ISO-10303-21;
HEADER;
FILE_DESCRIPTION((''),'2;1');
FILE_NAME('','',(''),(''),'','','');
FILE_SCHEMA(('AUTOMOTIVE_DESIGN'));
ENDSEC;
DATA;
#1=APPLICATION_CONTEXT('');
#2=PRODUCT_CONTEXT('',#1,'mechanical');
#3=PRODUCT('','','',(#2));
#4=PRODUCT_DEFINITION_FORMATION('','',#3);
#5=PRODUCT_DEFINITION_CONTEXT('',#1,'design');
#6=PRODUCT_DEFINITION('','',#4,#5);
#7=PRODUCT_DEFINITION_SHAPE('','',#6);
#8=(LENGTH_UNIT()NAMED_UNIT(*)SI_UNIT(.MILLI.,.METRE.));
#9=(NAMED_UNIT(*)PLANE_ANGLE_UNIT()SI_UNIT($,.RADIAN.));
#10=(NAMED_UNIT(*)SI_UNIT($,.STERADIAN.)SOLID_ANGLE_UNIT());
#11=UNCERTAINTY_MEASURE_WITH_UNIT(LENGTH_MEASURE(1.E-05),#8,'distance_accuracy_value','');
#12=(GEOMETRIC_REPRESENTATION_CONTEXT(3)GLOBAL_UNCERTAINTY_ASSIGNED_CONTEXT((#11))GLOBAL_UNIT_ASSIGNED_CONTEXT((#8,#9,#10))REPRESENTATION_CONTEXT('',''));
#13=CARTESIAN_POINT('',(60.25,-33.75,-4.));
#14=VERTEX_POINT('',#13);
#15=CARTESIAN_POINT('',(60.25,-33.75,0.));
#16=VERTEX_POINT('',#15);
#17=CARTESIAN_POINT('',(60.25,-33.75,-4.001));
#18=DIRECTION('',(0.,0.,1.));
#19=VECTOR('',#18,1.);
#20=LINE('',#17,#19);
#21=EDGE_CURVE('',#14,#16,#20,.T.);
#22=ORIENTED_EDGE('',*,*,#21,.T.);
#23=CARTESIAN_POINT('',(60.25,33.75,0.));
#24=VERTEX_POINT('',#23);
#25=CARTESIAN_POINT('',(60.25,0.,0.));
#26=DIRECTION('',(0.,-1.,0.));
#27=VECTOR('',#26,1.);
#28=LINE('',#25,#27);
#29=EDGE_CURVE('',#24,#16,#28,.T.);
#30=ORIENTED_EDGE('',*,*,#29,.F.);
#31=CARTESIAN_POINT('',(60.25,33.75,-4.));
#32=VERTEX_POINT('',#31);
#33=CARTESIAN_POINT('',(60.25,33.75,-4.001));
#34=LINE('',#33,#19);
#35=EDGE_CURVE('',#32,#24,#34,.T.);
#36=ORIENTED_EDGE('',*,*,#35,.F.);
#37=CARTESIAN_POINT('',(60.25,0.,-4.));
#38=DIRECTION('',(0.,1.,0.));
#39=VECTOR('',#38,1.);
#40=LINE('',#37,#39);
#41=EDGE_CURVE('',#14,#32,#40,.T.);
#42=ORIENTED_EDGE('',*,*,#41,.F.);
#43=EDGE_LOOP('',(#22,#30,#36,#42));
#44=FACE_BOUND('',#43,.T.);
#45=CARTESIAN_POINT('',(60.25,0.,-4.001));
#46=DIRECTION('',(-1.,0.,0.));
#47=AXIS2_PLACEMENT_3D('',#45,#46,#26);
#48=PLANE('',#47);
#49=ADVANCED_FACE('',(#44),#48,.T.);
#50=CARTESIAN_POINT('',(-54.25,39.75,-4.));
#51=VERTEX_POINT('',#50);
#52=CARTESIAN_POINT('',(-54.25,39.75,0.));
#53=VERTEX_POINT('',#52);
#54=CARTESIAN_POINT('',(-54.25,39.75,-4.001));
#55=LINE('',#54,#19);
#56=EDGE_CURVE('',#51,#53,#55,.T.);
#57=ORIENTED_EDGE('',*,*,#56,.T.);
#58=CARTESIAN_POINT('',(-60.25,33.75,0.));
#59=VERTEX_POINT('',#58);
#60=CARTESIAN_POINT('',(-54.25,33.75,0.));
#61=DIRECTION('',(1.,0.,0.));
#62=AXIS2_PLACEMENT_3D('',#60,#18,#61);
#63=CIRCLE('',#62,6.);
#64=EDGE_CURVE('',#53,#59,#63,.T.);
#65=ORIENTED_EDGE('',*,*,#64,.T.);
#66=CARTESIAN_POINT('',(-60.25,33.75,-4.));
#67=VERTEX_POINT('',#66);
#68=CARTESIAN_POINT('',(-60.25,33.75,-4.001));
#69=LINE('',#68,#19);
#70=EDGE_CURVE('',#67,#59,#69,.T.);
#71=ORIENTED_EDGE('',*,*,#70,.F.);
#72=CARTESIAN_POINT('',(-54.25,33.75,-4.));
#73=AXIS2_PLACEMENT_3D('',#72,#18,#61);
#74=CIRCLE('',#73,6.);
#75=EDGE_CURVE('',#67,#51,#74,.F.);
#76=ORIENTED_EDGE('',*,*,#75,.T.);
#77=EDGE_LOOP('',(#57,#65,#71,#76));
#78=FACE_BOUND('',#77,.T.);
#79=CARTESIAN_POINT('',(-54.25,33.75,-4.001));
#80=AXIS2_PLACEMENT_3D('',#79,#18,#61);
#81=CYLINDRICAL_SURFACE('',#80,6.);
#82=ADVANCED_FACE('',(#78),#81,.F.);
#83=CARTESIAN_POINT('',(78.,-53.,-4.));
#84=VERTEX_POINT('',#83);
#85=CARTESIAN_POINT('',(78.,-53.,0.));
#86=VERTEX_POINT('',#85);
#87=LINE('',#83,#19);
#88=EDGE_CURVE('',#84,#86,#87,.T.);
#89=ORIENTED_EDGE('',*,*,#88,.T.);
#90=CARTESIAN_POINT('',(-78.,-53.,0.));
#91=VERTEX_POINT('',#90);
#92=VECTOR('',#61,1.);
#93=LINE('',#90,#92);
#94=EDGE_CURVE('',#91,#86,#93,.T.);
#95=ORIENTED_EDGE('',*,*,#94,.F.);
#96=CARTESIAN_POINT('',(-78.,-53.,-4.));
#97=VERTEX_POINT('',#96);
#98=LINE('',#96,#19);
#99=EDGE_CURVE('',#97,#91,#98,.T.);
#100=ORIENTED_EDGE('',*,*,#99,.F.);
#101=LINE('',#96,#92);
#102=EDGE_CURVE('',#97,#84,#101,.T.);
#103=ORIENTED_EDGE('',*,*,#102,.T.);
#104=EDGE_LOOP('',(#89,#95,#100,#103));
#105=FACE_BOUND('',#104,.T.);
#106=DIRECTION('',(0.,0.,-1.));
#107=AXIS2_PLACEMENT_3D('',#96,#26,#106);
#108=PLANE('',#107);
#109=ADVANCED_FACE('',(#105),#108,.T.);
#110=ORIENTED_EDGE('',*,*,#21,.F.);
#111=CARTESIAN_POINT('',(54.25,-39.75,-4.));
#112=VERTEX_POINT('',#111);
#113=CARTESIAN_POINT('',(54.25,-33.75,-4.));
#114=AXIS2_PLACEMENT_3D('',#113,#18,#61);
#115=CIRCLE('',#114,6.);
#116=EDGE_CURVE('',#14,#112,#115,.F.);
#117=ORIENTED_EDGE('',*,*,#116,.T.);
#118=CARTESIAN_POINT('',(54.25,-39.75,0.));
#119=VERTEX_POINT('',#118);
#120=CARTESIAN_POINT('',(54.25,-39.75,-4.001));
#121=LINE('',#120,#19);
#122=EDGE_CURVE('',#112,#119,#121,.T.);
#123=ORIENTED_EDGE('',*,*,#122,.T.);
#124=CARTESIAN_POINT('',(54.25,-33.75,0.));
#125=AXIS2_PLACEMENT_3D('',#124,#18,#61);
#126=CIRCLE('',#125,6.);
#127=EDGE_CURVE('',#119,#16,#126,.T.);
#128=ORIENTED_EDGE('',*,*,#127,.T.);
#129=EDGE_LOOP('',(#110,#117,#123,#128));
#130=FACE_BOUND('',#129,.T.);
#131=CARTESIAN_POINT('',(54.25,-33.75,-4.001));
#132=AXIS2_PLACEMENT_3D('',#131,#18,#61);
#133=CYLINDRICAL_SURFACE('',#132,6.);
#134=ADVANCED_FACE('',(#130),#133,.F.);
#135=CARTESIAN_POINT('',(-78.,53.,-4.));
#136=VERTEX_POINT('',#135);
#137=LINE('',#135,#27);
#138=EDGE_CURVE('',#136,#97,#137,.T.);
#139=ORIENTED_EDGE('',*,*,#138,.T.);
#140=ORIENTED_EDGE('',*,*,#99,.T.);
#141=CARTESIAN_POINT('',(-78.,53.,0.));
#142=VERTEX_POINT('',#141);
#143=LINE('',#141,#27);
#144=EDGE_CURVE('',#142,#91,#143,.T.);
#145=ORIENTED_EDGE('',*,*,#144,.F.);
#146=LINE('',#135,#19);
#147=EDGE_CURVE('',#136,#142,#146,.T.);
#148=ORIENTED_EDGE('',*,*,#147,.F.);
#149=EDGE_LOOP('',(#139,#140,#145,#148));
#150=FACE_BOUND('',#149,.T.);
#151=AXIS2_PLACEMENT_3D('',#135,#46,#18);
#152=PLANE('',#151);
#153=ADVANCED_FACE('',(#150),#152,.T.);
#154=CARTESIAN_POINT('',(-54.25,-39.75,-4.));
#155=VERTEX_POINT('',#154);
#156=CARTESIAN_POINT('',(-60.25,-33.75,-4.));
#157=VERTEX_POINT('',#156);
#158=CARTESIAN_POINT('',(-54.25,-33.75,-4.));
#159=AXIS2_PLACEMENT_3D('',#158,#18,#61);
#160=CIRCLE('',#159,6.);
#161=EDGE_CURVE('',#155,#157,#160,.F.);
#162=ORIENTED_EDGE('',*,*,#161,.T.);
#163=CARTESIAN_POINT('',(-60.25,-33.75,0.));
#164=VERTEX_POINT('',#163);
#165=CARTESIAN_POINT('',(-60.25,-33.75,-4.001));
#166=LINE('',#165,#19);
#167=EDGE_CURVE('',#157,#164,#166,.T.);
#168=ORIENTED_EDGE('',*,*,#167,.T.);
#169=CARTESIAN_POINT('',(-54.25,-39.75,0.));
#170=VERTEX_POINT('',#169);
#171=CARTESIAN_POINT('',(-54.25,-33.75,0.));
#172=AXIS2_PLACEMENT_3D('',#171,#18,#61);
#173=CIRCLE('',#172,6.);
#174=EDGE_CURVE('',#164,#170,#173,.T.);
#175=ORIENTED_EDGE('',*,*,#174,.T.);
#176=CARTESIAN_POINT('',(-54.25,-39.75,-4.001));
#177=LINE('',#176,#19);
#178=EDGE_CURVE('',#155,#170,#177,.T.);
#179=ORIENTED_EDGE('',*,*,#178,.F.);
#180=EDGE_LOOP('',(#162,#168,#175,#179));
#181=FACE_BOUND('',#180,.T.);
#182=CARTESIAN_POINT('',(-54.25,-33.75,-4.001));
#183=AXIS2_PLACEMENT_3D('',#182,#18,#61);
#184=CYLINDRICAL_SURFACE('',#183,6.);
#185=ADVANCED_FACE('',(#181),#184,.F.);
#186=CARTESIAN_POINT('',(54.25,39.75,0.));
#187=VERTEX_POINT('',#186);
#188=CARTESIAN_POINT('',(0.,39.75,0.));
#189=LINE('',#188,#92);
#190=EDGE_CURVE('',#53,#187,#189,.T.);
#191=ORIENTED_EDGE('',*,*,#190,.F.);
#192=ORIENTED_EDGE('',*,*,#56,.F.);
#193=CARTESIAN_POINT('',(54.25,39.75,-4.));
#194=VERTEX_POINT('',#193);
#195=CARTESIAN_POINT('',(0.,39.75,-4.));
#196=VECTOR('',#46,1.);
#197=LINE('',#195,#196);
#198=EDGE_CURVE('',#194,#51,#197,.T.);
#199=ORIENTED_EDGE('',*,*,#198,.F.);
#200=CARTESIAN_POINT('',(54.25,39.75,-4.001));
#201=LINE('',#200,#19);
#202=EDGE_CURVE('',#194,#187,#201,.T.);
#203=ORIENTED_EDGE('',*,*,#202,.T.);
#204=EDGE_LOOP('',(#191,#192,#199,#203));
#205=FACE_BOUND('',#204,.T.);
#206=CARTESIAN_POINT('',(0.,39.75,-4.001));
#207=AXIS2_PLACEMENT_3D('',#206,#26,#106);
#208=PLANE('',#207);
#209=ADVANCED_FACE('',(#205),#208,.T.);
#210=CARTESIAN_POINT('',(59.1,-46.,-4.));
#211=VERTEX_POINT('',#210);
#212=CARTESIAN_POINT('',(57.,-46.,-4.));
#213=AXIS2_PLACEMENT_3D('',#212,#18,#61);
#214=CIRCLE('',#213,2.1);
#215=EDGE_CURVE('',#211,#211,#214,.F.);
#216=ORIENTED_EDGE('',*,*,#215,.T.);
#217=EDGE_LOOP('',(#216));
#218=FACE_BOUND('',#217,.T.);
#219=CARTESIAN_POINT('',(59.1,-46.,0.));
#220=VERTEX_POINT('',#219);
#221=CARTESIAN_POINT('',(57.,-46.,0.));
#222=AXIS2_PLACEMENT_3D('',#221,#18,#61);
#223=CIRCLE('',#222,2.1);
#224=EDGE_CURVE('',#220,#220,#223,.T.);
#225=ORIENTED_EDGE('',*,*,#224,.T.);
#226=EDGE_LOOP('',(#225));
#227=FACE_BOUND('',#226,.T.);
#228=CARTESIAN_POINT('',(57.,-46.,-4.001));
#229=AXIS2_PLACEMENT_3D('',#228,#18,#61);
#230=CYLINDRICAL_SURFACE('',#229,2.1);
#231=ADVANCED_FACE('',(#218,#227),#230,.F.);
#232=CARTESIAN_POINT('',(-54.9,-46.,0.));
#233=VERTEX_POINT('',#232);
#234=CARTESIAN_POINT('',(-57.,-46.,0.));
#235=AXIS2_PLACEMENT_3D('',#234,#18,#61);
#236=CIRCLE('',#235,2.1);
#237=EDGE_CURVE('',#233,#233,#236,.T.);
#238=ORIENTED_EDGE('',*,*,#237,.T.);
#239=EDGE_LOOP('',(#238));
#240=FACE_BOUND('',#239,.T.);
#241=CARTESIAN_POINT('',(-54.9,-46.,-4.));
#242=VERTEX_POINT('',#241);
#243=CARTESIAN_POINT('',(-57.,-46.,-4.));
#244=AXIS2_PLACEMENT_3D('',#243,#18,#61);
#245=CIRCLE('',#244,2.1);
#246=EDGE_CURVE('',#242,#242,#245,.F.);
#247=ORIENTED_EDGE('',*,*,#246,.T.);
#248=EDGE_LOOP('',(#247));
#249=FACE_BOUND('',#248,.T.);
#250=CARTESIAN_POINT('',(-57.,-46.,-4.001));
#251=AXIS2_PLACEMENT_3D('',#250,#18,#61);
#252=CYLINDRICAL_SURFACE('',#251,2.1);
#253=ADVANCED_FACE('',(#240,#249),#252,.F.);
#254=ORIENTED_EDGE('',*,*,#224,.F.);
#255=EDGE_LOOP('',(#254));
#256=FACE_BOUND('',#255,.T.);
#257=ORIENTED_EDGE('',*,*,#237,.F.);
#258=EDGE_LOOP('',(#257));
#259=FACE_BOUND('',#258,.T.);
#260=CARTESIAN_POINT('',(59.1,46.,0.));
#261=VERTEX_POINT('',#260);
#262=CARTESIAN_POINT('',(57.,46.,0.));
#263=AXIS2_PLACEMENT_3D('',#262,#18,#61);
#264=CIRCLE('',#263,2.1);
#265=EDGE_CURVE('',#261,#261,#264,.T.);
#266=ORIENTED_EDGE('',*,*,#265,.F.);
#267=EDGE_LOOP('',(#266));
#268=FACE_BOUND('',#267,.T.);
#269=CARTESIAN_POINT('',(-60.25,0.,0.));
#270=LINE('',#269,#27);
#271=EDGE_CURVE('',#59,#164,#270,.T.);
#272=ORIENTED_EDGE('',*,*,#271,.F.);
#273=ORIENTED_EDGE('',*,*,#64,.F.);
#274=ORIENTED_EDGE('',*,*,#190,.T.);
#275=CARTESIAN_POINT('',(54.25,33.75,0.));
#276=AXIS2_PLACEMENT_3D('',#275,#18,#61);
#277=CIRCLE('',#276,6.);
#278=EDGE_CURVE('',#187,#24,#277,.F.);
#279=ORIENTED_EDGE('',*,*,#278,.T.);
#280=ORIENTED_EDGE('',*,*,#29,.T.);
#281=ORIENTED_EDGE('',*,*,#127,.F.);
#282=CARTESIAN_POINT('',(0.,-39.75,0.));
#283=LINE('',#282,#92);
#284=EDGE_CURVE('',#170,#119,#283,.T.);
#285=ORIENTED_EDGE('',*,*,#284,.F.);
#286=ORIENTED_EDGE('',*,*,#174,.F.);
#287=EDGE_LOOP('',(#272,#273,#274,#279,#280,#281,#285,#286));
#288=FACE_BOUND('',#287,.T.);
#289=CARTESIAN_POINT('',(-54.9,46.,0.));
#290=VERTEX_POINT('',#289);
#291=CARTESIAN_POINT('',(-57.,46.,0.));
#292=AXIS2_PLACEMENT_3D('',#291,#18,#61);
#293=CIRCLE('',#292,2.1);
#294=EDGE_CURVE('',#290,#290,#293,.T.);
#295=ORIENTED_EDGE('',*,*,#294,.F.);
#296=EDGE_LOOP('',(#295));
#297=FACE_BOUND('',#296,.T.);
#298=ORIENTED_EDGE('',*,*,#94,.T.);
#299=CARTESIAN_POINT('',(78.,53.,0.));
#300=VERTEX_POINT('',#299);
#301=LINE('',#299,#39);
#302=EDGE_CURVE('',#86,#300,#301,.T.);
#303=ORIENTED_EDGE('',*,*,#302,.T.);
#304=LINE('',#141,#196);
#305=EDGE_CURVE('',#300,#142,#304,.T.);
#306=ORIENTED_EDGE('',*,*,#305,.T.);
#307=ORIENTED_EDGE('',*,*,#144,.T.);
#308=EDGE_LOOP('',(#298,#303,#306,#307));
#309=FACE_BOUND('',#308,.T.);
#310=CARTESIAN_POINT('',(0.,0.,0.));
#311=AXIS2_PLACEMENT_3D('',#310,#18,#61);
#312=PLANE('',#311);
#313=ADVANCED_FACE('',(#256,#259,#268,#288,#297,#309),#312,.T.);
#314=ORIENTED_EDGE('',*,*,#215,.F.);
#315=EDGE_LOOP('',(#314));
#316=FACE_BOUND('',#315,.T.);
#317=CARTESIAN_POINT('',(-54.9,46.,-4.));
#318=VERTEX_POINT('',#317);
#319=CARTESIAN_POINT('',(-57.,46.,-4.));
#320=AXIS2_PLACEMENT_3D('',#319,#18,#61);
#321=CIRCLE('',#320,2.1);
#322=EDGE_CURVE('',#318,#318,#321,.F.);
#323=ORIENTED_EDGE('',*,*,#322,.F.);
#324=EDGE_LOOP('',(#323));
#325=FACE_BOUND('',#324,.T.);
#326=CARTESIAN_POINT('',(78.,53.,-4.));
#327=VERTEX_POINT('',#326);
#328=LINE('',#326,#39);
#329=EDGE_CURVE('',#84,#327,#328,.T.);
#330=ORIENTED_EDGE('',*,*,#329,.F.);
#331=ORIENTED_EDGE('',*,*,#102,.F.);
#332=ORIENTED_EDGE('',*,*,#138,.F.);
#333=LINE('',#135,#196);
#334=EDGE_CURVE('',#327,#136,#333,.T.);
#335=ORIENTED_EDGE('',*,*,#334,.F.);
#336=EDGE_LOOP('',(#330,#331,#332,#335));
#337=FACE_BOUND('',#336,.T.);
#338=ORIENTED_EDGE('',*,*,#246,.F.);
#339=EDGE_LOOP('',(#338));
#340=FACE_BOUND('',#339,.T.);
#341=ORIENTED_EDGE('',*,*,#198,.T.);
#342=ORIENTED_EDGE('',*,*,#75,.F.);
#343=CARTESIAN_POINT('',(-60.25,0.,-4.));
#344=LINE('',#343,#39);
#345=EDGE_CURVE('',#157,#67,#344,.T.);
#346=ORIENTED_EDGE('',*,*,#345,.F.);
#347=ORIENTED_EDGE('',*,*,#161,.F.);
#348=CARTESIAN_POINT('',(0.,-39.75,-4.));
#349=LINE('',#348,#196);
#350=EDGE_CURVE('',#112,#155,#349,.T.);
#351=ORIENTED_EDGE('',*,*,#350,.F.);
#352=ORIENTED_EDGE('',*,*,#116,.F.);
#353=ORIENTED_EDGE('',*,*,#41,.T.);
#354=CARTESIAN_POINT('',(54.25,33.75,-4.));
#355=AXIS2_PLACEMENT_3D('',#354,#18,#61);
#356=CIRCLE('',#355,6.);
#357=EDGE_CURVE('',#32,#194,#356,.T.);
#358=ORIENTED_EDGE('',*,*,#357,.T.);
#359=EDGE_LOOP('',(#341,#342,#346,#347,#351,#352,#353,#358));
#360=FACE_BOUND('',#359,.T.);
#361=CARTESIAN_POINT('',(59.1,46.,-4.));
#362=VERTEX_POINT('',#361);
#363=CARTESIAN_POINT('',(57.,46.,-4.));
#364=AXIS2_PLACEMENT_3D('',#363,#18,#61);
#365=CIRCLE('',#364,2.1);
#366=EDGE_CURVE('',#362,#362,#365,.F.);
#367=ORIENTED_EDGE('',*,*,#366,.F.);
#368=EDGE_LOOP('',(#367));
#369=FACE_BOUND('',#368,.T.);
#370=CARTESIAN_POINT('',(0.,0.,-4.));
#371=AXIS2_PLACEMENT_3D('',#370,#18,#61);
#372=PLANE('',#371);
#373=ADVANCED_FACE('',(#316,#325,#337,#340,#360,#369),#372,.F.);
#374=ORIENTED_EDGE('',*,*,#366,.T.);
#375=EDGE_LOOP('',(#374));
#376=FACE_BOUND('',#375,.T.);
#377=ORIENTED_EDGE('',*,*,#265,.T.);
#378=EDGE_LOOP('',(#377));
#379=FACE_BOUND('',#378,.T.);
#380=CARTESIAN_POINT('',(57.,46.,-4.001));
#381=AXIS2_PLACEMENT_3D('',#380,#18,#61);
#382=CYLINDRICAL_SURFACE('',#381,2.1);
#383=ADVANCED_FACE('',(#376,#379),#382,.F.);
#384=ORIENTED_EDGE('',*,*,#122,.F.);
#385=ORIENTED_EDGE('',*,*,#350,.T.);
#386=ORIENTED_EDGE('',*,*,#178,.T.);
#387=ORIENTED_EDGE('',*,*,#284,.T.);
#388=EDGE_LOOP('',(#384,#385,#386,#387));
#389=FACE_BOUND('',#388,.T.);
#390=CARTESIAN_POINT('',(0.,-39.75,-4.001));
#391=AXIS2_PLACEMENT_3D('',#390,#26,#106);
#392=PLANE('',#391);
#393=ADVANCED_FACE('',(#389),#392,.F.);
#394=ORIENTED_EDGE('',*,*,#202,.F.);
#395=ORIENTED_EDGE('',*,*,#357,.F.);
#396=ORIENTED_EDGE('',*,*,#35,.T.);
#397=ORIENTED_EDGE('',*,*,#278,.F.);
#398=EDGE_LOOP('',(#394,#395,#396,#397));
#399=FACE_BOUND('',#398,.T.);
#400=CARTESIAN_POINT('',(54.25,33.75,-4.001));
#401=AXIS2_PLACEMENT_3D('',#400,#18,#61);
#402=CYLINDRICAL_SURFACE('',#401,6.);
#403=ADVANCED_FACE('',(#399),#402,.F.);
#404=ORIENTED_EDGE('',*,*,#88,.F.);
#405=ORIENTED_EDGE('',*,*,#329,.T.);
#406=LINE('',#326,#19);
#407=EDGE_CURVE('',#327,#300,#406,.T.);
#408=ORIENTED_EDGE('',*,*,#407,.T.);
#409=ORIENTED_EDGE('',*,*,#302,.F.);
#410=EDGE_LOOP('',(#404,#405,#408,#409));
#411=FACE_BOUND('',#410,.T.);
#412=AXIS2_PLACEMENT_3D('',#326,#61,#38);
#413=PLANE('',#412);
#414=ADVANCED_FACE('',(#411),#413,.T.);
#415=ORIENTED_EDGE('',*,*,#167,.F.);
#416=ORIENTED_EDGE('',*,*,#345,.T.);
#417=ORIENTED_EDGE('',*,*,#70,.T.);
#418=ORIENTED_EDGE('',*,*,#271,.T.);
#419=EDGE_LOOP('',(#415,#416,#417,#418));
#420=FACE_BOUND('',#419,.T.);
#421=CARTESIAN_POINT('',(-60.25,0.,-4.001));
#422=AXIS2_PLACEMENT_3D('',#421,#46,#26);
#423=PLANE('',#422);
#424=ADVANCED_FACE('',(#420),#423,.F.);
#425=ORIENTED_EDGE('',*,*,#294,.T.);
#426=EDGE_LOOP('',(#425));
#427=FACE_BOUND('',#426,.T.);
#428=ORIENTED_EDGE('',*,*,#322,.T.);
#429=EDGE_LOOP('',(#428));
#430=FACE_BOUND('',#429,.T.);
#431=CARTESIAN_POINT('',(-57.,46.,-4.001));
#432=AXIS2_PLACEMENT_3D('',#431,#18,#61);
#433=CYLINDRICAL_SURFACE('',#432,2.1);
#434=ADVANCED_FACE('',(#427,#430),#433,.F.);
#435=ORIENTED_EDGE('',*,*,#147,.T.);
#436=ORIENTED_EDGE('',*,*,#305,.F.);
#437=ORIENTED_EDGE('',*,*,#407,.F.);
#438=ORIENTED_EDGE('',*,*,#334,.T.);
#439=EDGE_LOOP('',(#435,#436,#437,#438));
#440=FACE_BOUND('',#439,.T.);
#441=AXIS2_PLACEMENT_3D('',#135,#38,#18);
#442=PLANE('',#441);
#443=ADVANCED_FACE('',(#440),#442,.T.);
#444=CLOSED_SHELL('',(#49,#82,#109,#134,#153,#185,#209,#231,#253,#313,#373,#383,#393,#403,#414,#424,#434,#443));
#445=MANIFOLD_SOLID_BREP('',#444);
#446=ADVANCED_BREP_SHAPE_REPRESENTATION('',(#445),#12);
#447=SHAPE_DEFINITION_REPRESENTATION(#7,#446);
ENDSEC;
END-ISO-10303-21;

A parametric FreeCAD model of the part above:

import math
import FreeCAD as App
import Part
import Sketcher

V = App.Vector
Q = App.Units.Quantity


def add_polygon(sketch, points):
    """Adds a closed chain of lines whose ends are joined by coincident constraints."""
    first, n = sketch.GeometryCount, len(points)
    for a, b in zip(points, points[1:] + points[:1]):
        sketch.addGeometry(Part.LineSegment(App.Vector(*a, 0), App.Vector(*b, 0)), False)
    for i in range(n):
        sketch.addConstraint(Sketcher.Constraint("Coincident", first + i, 2, first + (i + 1) % n, 1))

doc = App.newDocument("Part")
body = doc.addObject("PartDesign::Body", "Body")

sketch1 = body.newObject("Sketcher::SketchObject", "Sketch")
sketch1.AttachmentSupport = (doc.getObject("XY_Plane"), [""])
sketch1.MapMode = "FlatFace"
add_polygon(sketch1, [(-78, 53), (-78, -53), (78, -53), (78, 53)])
sketch1.addConstraint(Sketcher.Constraint("Vertical", 0))
sketch1.addConstraint(Sketcher.Constraint("Horizontal", 1))
sketch1.addConstraint(Sketcher.Constraint("Vertical", 2))
sketch1.addConstraint(Sketcher.Constraint("Horizontal", 3))
sketch1.addConstraint(Sketcher.Constraint("Symmetric", 0, 2, 2, 2, -1, 1))
sketch1.addConstraint(Sketcher.Constraint("DistanceX", 1, 1, 1, 2, Q("156 mm")))
sketch1.addConstraint(Sketcher.Constraint("DistanceY", 0, 2, 0, 1, Q("106 mm")))
pad1 = body.newObject("PartDesign::Pad", "Pad")
pad1.Profile = sketch1
pad1.Length = 4
pad1.Reversed = True

sketch2 = body.newObject("Sketcher::SketchObject", "Sketch001")
sketch2.AttachmentSupport = (doc.getObject("XY_Plane"), [""])
sketch2.MapMode = "FlatFace"
sketch2.addGeometry(Part.ArcOfCircle(Part.Circle(V(54, 34, 0), V(0, 0, 1), 6), math.radians(0), math.radians(63)), False)
sketch2.addGeometry(Part.LineSegment(V(57, 39, 0), V(57, -39, 0)), False)
sketch2.addGeometry(Part.ArcOfCircle(Part.Circle(V(54, -34, 0), V(0, 0, 1), 6), math.radians(-63), math.radians(0)), False)
sketch2.addGeometry(Part.LineSegment(V(60, -34, 0), V(60, 34, 0)), False)
sketch2.addConstraint(Sketcher.Constraint("Coincident", 0, 2, 1, 1))
sketch2.addConstraint(Sketcher.Constraint("Coincident", 1, 2, 2, 1))
sketch2.addConstraint(Sketcher.Constraint("Tangent", 2, 2, 3, 1))
sketch2.addConstraint(Sketcher.Constraint("Tangent", 3, 2, 0, 1))
sketch2.addConstraint(Sketcher.Constraint("Vertical", 1))
sketch2.addConstraint(Sketcher.Constraint("Vertical", 3))
sketch2.addConstraint(Sketcher.Constraint("Equal", 0, 2))
sketch2.addConstraint(Sketcher.Constraint("Radius", 0, Q("6 mm")))
sketch2.addConstraint(Sketcher.Constraint("DistanceY", 3, 1, 3, 2, Q("67.5 mm")))
sketch2.addConstraint(Sketcher.Constraint("DistanceX", -1, 1, 0, 2, Q("57 mm")))
sketch2.addConstraint(Sketcher.Constraint("DistanceX", -1, 1, 0, 3, Q("54.25 mm")))
sketch2.addConstraint(Sketcher.Constraint("DistanceY", -1, 1, 0, 3, Q("33.75 mm")))
pocket1 = body.newObject("PartDesign::Pocket", "Pocket")
pocket1.Profile = sketch2
pocket1.Type = "UpToFirst"

sketch3 = body.newObject("Sketcher::SketchObject", "Sketch002")
sketch3.AttachmentSupport = (doc.getObject("XY_Plane"), [""])
sketch3.MapMode = "FlatFace"
sketch3.addGeometry(Part.ArcOfCircle(Part.Circle(V(-54.2, 33.7, 0), V(0, 0, 1), 6), math.radians(90), math.radians(117)), False)
sketch3.addGeometry(Part.LineSegment(V(-57, 39.1, 0), V(-57, -39.1, 0)), False)
sketch3.addGeometry(Part.ArcOfCircle(Part.Circle(V(-54.2, -33.7, 0), V(0, 0, 1), 6), math.radians(-117), math.radians(-90)), False)
sketch3.addGeometry(Part.LineSegment(V(-54.2, -39.8, 0), V(54.2, -39.8, 0)), False)
sketch3.addGeometry(Part.ArcOfCircle(Part.Circle(V(54.2, -33.7, 0), V(0, 0, 1), 6), math.radians(-90), math.radians(-63)), False)
sketch3.addGeometry(Part.LineSegment(V(57, -39.1, 0), V(57, 39.1, 0)), False)
sketch3.addGeometry(Part.ArcOfCircle(Part.Circle(V(54.2, 33.7, 0), V(0, 0, 1), 6), math.radians(63), math.radians(90)), False)
sketch3.addGeometry(Part.LineSegment(V(54.2, 39.8, 0), V(-54.2, 39.8, 0)), False)
sketch3.addConstraint(Sketcher.Constraint("Coincident", 0, 2, 1, 1))
sketch3.addConstraint(Sketcher.Constraint("Coincident", 1, 2, 2, 1))
sketch3.addConstraint(Sketcher.Constraint("Tangent", 2, 2, 3, 1))
sketch3.addConstraint(Sketcher.Constraint("Tangent", 3, 2, 4, 1))
sketch3.addConstraint(Sketcher.Constraint("Coincident", 4, 2, 5, 1))
sketch3.addConstraint(Sketcher.Constraint("Coincident", 5, 2, 6, 1))
sketch3.addConstraint(Sketcher.Constraint("Tangent", 6, 2, 7, 1))
sketch3.addConstraint(Sketcher.Constraint("Tangent", 7, 2, 0, 1))
sketch3.addConstraint(Sketcher.Constraint("Vertical", 1))
sketch3.addConstraint(Sketcher.Constraint("Horizontal", 3))
sketch3.addConstraint(Sketcher.Constraint("Vertical", 5))
sketch3.addConstraint(Sketcher.Constraint("Horizontal", 7))
sketch3.addConstraint(Sketcher.Constraint("Equal", 0, 2))
sketch3.addConstraint(Sketcher.Constraint("Equal", 2, 4))
sketch3.addConstraint(Sketcher.Constraint("Equal", 4, 6))
sketch3.addConstraint(Sketcher.Constraint("Symmetric", 0, 3, 4, 3, -1, 1))
sketch3.addConstraint(Sketcher.Constraint("Symmetric", 1, 2, 5, 2, -1, 1))
sketch3.addConstraint(Sketcher.Constraint("Horizontal", 1, 2, 4, 2))
sketch3.addConstraint(Sketcher.Constraint("Radius", 0, Q("6 mm")))
sketch3.addConstraint(Sketcher.Constraint("DistanceX", 3, 1, 3, 2, Q("108.5 mm")))
sketch3.addConstraint(Sketcher.Constraint("DistanceX", 0, 2, -1, 1, Q("57 mm")))
sketch3.addConstraint(Sketcher.Constraint("DistanceY", 2, 3, 0, 3, Q("67.5 mm")))
pocket2 = body.newObject("PartDesign::Pocket", "Pocket001")
pocket2.Profile = sketch3
pocket2.Type = "UpToFirst"

sketch4 = body.newObject("Sketcher::SketchObject", "Sketch003")
sketch4.AttachmentSupport = (doc.getObject("XY_Plane"), [""])
sketch4.MapMode = "FlatFace"
sketch4.addGeometry(Part.LineSegment(V(-57, -39, 0), V(-57, 39, 0)), False)
sketch4.addGeometry(Part.ArcOfCircle(Part.Circle(V(-54, 34, 0), V(0, 0, 1), 6), math.radians(117), math.radians(180)), False)
sketch4.addGeometry(Part.LineSegment(V(-60, 34, 0), V(-60, -34, 0)), False)
sketch4.addGeometry(Part.ArcOfCircle(Part.Circle(V(-54, -34, 0), V(0, 0, 1), 6), math.radians(180), math.radians(243)), False)
sketch4.addConstraint(Sketcher.Constraint("Coincident", 0, 2, 1, 1))
sketch4.addConstraint(Sketcher.Constraint("Tangent", 1, 2, 2, 1))
sketch4.addConstraint(Sketcher.Constraint("Tangent", 2, 2, 3, 1))
sketch4.addConstraint(Sketcher.Constraint("Coincident", 3, 2, 0, 1))
sketch4.addConstraint(Sketcher.Constraint("Vertical", 0))
sketch4.addConstraint(Sketcher.Constraint("Vertical", 2))
sketch4.addConstraint(Sketcher.Constraint("Equal", 1, 3))
sketch4.addConstraint(Sketcher.Constraint("Radius", 1, Q("6 mm")))
sketch4.addConstraint(Sketcher.Constraint("DistanceY", 2, 2, 2, 1, Q("67.5 mm")))
sketch4.addConstraint(Sketcher.Constraint("DistanceX", 0, 2, -1, 1, Q("57 mm")))
sketch4.addConstraint(Sketcher.Constraint("DistanceX", 1, 3, -1, 1, Q("54.25 mm")))
sketch4.addConstraint(Sketcher.Constraint("DistanceY", -1, 1, 1, 3, Q("33.75 mm")))
pocket3 = body.newObject("PartDesign::Pocket", "Pocket002")
pocket3.Profile = sketch4
pocket3.Type = "UpToFirst"

sketch5 = body.newObject("Sketcher::SketchObject", "Sketch004")
sketch5.AttachmentSupport = (doc.getObject("XY_Plane"), [""])
sketch5.MapMode = "FlatFace"
sketch5.addGeometry(Part.ArcOfCircle(Part.Circle(V(57, 46, 0), V(0, 0, 1), 2.1), math.radians(0), math.radians(180)), False)
sketch5.addGeometry(Part.LineSegment(V(54.9, 46, 0), V(57, 46, 0)), False)
sketch5.addGeometry(Part.LineSegment(V(57, 46, 0), V(57, 43.9, 0)), False)
sketch5.addGeometry(Part.ArcOfCircle(Part.Circle(V(57, 46, 0), V(0, 0, 1), 2.1), math.radians(-90), math.radians(0)), False)
sketch5.addConstraint(Sketcher.Constraint("Coincident", 0, 2, 1, 1))
sketch5.addConstraint(Sketcher.Constraint("Coincident", 1, 2, 2, 1))
sketch5.addConstraint(Sketcher.Constraint("Coincident", 2, 2, 3, 1))
sketch5.addConstraint(Sketcher.Constraint("Tangent", 3, 2, 0, 1))
sketch5.addConstraint(Sketcher.Constraint("Horizontal", 1))
sketch5.addConstraint(Sketcher.Constraint("Vertical", 2))
sketch5.addConstraint(Sketcher.Constraint("Coincident", 1, 2, 0, 3))
sketch5.addConstraint(Sketcher.Constraint("Equal", 0, 3))
sketch5.addConstraint(Sketcher.Constraint("Horizontal", 1, 2, 3, 2))
sketch5.addConstraint(Sketcher.Constraint("Radius", 0, Q("2.1 mm")))
sketch5.addConstraint(Sketcher.Constraint("DistanceX", -1, 1, 0, 3, Q("57 mm")))
sketch5.addConstraint(Sketcher.Constraint("DistanceY", -1, 1, 0, 3, Q("46 mm")))
pocket4 = body.newObject("PartDesign::Pocket", "Pocket003")
pocket4.Profile = sketch5
pocket4.Type = "UpToFirst"

sketch6 = body.newObject("Sketcher::SketchObject", "Sketch005")
sketch6.AttachmentSupport = (doc.getObject("XY_Plane"), [""])
sketch6.MapMode = "FlatFace"
sketch6.addGeometry(Part.LineSegment(V(57, 46, 0), V(54.9, 46, 0)), False)
sketch6.addGeometry(Part.ArcOfCircle(Part.Circle(V(57, 46, 0), V(0, 0, 1), 2.1), math.radians(-180), math.radians(-90)), False)
sketch6.addGeometry(Part.LineSegment(V(57, 43.9, 0), V(57, 46, 0)), False)
sketch6.addConstraint(Sketcher.Constraint("Coincident", 0, 2, 1, 1))
sketch6.addConstraint(Sketcher.Constraint("Coincident", 1, 2, 2, 1))
sketch6.addConstraint(Sketcher.Constraint("Coincident", 2, 2, 0, 1))
sketch6.addConstraint(Sketcher.Constraint("Horizontal", 0))
sketch6.addConstraint(Sketcher.Constraint("Vertical", 2))
sketch6.addConstraint(Sketcher.Constraint("Coincident", 2, 2, 1, 3))
sketch6.addConstraint(Sketcher.Constraint("Radius", 1, Q("2.1 mm")))
sketch6.addConstraint(Sketcher.Constraint("DistanceX", -1, 1, 1, 3, Q("57 mm")))
sketch6.addConstraint(Sketcher.Constraint("DistanceY", -1, 1, 1, 3, Q("46 mm")))
pocket5 = body.newObject("PartDesign::Pocket", "Pocket004")
pocket5.Profile = sketch6
pocket5.Type = "UpToFirst"

sketch7 = body.newObject("Sketcher::SketchObject", "Sketch006")
sketch7.AttachmentSupport = (doc.getObject("XY_Plane"), [""])
sketch7.MapMode = "FlatFace"
sketch7.addGeometry(Part.ArcOfCircle(Part.Circle(V(57, 46, 0), V(0, 0, 1), 2.1), math.radians(0), math.radians(180)), False)
sketch7.addGeometry(Part.LineSegment(V(54.9, 46, 0), V(57, 46, 0)), False)
sketch7.addGeometry(Part.LineSegment(V(57, 46, 0), V(57, 43.9, 0)), False)
sketch7.addGeometry(Part.ArcOfCircle(Part.Circle(V(57, 46, 0), V(0, 0, 1), 2.1), math.radians(-90), math.radians(0)), False)
sketch7.addConstraint(Sketcher.Constraint("Coincident", 0, 2, 1, 1))
sketch7.addConstraint(Sketcher.Constraint("Coincident", 1, 2, 2, 1))
sketch7.addConstraint(Sketcher.Constraint("Coincident", 2, 2, 3, 1))
sketch7.addConstraint(Sketcher.Constraint("Tangent", 3, 2, 0, 1))
sketch7.addConstraint(Sketcher.Constraint("Horizontal", 1))
sketch7.addConstraint(Sketcher.Constraint("Vertical", 2))
sketch7.addConstraint(Sketcher.Constraint("Coincident", 1, 2, 0, 3))
sketch7.addConstraint(Sketcher.Constraint("Equal", 0, 3))
sketch7.addConstraint(Sketcher.Constraint("Horizontal", 1, 2, 3, 2))
sketch7.addConstraint(Sketcher.Constraint("Radius", 0, Q("2.1 mm")))
sketch7.addConstraint(Sketcher.Constraint("DistanceX", -1, 1, 0, 3, Q("57 mm")))
sketch7.addConstraint(Sketcher.Constraint("DistanceY", -1, 1, 0, 3, Q("46 mm")))
pocket6 = body.newObject("PartDesign::Pocket", "Pocket005")
pocket6.Profile = sketch7
pocket6.Length = 4

sketch8 = body.newObject("Sketcher::SketchObject", "Sketch007")
sketch8.AttachmentSupport = (doc.getObject("XY_Plane"), [""])
sketch8.MapMode = "FlatFace"
sketch8.addGeometry(Part.LineSegment(V(57, 46, 0), V(54.9, 46, 0)), False)
sketch8.addGeometry(Part.ArcOfCircle(Part.Circle(V(57, 46, 0), V(0, 0, 1), 2.1), math.radians(-180), math.radians(-90)), False)
sketch8.addGeometry(Part.LineSegment(V(57, 43.9, 0), V(57, 46, 0)), False)
sketch8.addConstraint(Sketcher.Constraint("Coincident", 0, 2, 1, 1))
sketch8.addConstraint(Sketcher.Constraint("Coincident", 1, 2, 2, 1))
sketch8.addConstraint(Sketcher.Constraint("Coincident", 2, 2, 0, 1))
sketch8.addConstraint(Sketcher.Constraint("Horizontal", 0))
sketch8.addConstraint(Sketcher.Constraint("Vertical", 2))
sketch8.addConstraint(Sketcher.Constraint("Coincident", 2, 2, 1, 3))
sketch8.addConstraint(Sketcher.Constraint("Radius", 1, Q("2.1 mm")))
sketch8.addConstraint(Sketcher.Constraint("DistanceX", -1, 1, 1, 3, Q("57 mm")))
sketch8.addConstraint(Sketcher.Constraint("DistanceY", -1, 1, 1, 3, Q("46 mm")))
pocket7 = body.newObject("PartDesign::Pocket", "Pocket006")
pocket7.Profile = sketch8
pocket7.Length = 4

sketch9 = body.newObject("Sketcher::SketchObject", "Sketch008")
sketch9.AttachmentSupport = (doc.getObject("XY_Plane"), [""])
sketch9.MapMode = "FlatFace"
sketch9.addGeometry(Part.LineSegment(V(-57, 43.9, 0), V(-57, 46, 0)), False)
sketch9.addGeometry(Part.LineSegment(V(-57, 46, 0), V(-54.9, 46, 0)), False)
sketch9.addGeometry(Part.ArcOfCircle(Part.Circle(V(-57, 46, 0), V(0, 0, 1), 2.1), math.radians(0), math.radians(270)), False)
sketch9.addConstraint(Sketcher.Constraint("Coincident", 0, 2, 1, 1))
sketch9.addConstraint(Sketcher.Constraint("Coincident", 1, 2, 2, 1))
sketch9.addConstraint(Sketcher.Constraint("Coincident", 2, 2, 0, 1))
sketch9.addConstraint(Sketcher.Constraint("Vertical", 0))
sketch9.addConstraint(Sketcher.Constraint("Horizontal", 1))
sketch9.addConstraint(Sketcher.Constraint("Coincident", 0, 2, 2, 3))
sketch9.addConstraint(Sketcher.Constraint("Radius", 2, Q("2.1 mm")))
sketch9.addConstraint(Sketcher.Constraint("DistanceX", 2, 3, -1, 1, Q("57 mm")))
sketch9.addConstraint(Sketcher.Constraint("DistanceY", -1, 1, 2, 3, Q("46 mm")))
pocket8 = body.newObject("PartDesign::Pocket", "Pocket007")
pocket8.Profile = sketch9
pocket8.Type = "UpToFirst"

sketch10 = body.newObject("Sketcher::SketchObject", "Sketch009")
sketch10.AttachmentSupport = (doc.getObject("XY_Plane"), [""])
sketch10.MapMode = "FlatFace"
sketch10.addGeometry(Part.LineSegment(V(-54.9, 46, 0), V(-57, 46, 0)), False)
sketch10.addGeometry(Part.LineSegment(V(-57, 46, 0), V(-57, 43.9, 0)), False)
sketch10.addGeometry(Part.ArcOfCircle(Part.Circle(V(-57, 46, 0), V(0, 0, 1), 2.1), math.radians(-90), math.radians(0)), False)
sketch10.addConstraint(Sketcher.Constraint("Coincident", 0, 2, 1, 1))
sketch10.addConstraint(Sketcher.Constraint("Coincident", 1, 2, 2, 1))
sketch10.addConstraint(Sketcher.Constraint("Coincident", 2, 2, 0, 1))
sketch10.addConstraint(Sketcher.Constraint("Horizontal", 0))
sketch10.addConstraint(Sketcher.Constraint("Vertical", 1))
sketch10.addConstraint(Sketcher.Constraint("Coincident", 0, 2, 2, 3))
sketch10.addConstraint(Sketcher.Constraint("Radius", 2, Q("2.1 mm")))
sketch10.addConstraint(Sketcher.Constraint("DistanceX", 2, 3, -1, 1, Q("57 mm")))
sketch10.addConstraint(Sketcher.Constraint("DistanceY", -1, 1, 2, 3, Q("46 mm")))
pocket9 = body.newObject("PartDesign::Pocket", "Pocket008")
pocket9.Profile = sketch10
pocket9.Type = "UpToFirst"

sketch11 = body.newObject("Sketcher::SketchObject", "Sketch010")
sketch11.AttachmentSupport = (doc.getObject("XY_Plane"), [""])
sketch11.MapMode = "FlatFace"
sketch11.addGeometry(Part.LineSegment(V(-57, 43.9, 0), V(-57, 46, 0)), False)
sketch11.addGeometry(Part.LineSegment(V(-57, 46, 0), V(-54.9, 46, 0)), False)
sketch11.addGeometry(Part.ArcOfCircle(Part.Circle(V(-57, 46, 0), V(0, 0, 1), 2.1), math.radians(0), math.radians(270)), False)
sketch11.addConstraint(Sketcher.Constraint("Coincident", 0, 2, 1, 1))
sketch11.addConstraint(Sketcher.Constraint("Coincident", 1, 2, 2, 1))
sketch11.addConstraint(Sketcher.Constraint("Coincident", 2, 2, 0, 1))
sketch11.addConstraint(Sketcher.Constraint("Vertical", 0))
sketch11.addConstraint(Sketcher.Constraint("Horizontal", 1))
sketch11.addConstraint(Sketcher.Constraint("Coincident", 0, 2, 2, 3))
sketch11.addConstraint(Sketcher.Constraint("Radius", 2, Q("2.1 mm")))
sketch11.addConstraint(Sketcher.Constraint("DistanceX", 2, 3, -1, 1, Q("57 mm")))
sketch11.addConstraint(Sketcher.Constraint("DistanceY", -1, 1, 2, 3, Q("46 mm")))
pocket10 = body.newObject("PartDesign::Pocket", "Pocket009")
pocket10.Profile = sketch11
pocket10.Length = 4

sketch12 = body.newObject("Sketcher::SketchObject", "Sketch011")
sketch12.AttachmentSupport = (doc.getObject("XY_Plane"), [""])
sketch12.MapMode = "FlatFace"
sketch12.addGeometry(Part.LineSegment(V(-54.9, 46, 0), V(-57, 46, 0)), False)
sketch12.addGeometry(Part.LineSegment(V(-57, 46, 0), V(-57, 43.9, 0)), False)
sketch12.addGeometry(Part.ArcOfCircle(Part.Circle(V(-57, 46, 0), V(0, 0, 1), 2.1), math.radians(-90), math.radians(0)), False)
sketch12.addConstraint(Sketcher.Constraint("Coincident", 0, 2, 1, 1))
sketch12.addConstraint(Sketcher.Constraint("Coincident", 1, 2, 2, 1))
sketch12.addConstraint(Sketcher.Constraint("Coincident", 2, 2, 0, 1))
sketch12.addConstraint(Sketcher.Constraint("Horizontal", 0))
sketch12.addConstraint(Sketcher.Constraint("Vertical", 1))
sketch12.addConstraint(Sketcher.Constraint("Coincident", 0, 2, 2, 3))
sketch12.addConstraint(Sketcher.Constraint("Radius", 2, Q("2.1 mm")))
sketch12.addConstraint(Sketcher.Constraint("DistanceX", 2, 3, -1, 1, Q("57 mm")))
sketch12.addConstraint(Sketcher.Constraint("DistanceY", -1, 1, 2, 3, Q("46 mm")))
pocket11 = body.newObject("PartDesign::Pocket", "Pocket010")
pocket11.Profile = sketch12
pocket11.Length = 4

sketch13 = body.newObject("Sketcher::SketchObject", "Sketch012")
sketch13.AttachmentSupport = (doc.getObject("XY_Plane"), [""])
sketch13.MapMode = "FlatFace"
sketch13.addGeometry(Part.ArcOfCircle(Part.Circle(V(-57, -46, 0), V(0, 0, 1), 2.1), math.radians(0), math.radians(90)), False)
sketch13.addGeometry(Part.LineSegment(V(-57, -43.9, 0), V(-57, -46, 0)), False)
sketch13.addGeometry(Part.LineSegment(V(-57, -46, 0), V(-54.9, -46, 0)), False)
sketch13.addConstraint(Sketcher.Constraint("Coincident", 0, 2, 1, 1))
sketch13.addConstraint(Sketcher.Constraint("Coincident", 1, 2, 2, 1))
sketch13.addConstraint(Sketcher.Constraint("Coincident", 2, 2, 0, 1))
sketch13.addConstraint(Sketcher.Constraint("Vertical", 1))
sketch13.addConstraint(Sketcher.Constraint("Horizontal", 2))
sketch13.addConstraint(Sketcher.Constraint("Coincident", 1, 2, 0, 3))
sketch13.addConstraint(Sketcher.Constraint("Radius", 0, Q("2.1 mm")))
sketch13.addConstraint(Sketcher.Constraint("DistanceX", 0, 3, -1, 1, Q("57 mm")))
sketch13.addConstraint(Sketcher.Constraint("DistanceY", 0, 3, -1, 1, Q("46 mm")))
pocket12 = body.newObject("PartDesign::Pocket", "Pocket011")
pocket12.Profile = sketch13
pocket12.Type = "UpToFirst"

sketch14 = body.newObject("Sketcher::SketchObject", "Sketch013")
sketch14.AttachmentSupport = (doc.getObject("XY_Plane"), [""])
sketch14.MapMode = "FlatFace"
sketch14.addGeometry(Part.LineSegment(V(-57, -46, 0), V(-57, -43.9, 0)), False)
sketch14.addGeometry(Part.ArcOfCircle(Part.Circle(V(-57, -46, 0), V(0, 0, 1), 2.1), math.radians(90), math.radians(360)), False)
sketch14.addGeometry(Part.LineSegment(V(-54.9, -46, 0), V(-57, -46, 0)), False)
sketch14.addConstraint(Sketcher.Constraint("Coincident", 0, 2, 1, 1))
sketch14.addConstraint(Sketcher.Constraint("Coincident", 1, 2, 2, 1))
sketch14.addConstraint(Sketcher.Constraint("Coincident", 2, 2, 0, 1))
sketch14.addConstraint(Sketcher.Constraint("Vertical", 0))
sketch14.addConstraint(Sketcher.Constraint("Horizontal", 2))
sketch14.addConstraint(Sketcher.Constraint("Coincident", 2, 2, 1, 3))
sketch14.addConstraint(Sketcher.Constraint("Radius", 1, Q("2.1 mm")))
sketch14.addConstraint(Sketcher.Constraint("DistanceX", 1, 3, -1, 1, Q("57 mm")))
sketch14.addConstraint(Sketcher.Constraint("DistanceY", 1, 3, -1, 1, Q("46 mm")))
pocket13 = body.newObject("PartDesign::Pocket", "Pocket012")
pocket13.Profile = sketch14
pocket13.Type = "UpToFirst"

sketch15 = body.newObject("Sketcher::SketchObject", "Sketch014")
sketch15.AttachmentSupport = (doc.getObject("XY_Plane"), [""])
sketch15.MapMode = "FlatFace"
sketch15.addGeometry(Part.ArcOfCircle(Part.Circle(V(-57, -46, 0), V(0, 0, 1), 2.1), math.radians(0), math.radians(90)), False)
sketch15.addGeometry(Part.LineSegment(V(-57, -43.9, 0), V(-57, -46, 0)), False)
sketch15.addGeometry(Part.LineSegment(V(-57, -46, 0), V(-54.9, -46, 0)), False)
sketch15.addConstraint(Sketcher.Constraint("Coincident", 0, 2, 1, 1))
sketch15.addConstraint(Sketcher.Constraint("Coincident", 1, 2, 2, 1))
sketch15.addConstraint(Sketcher.Constraint("Coincident", 2, 2, 0, 1))
sketch15.addConstraint(Sketcher.Constraint("Vertical", 1))
sketch15.addConstraint(Sketcher.Constraint("Horizontal", 2))
sketch15.addConstraint(Sketcher.Constraint("Coincident", 1, 2, 0, 3))
sketch15.addConstraint(Sketcher.Constraint("Radius", 0, Q("2.1 mm")))
sketch15.addConstraint(Sketcher.Constraint("DistanceX", 0, 3, -1, 1, Q("57 mm")))
sketch15.addConstraint(Sketcher.Constraint("DistanceY", 0, 3, -1, 1, Q("46 mm")))
pocket14 = body.newObject("PartDesign::Pocket", "Pocket013")
pocket14.Profile = sketch15
pocket14.Length = 4

sketch16 = body.newObject("Sketcher::SketchObject", "Sketch015")
sketch16.AttachmentSupport = (doc.getObject("XY_Plane"), [""])
sketch16.MapMode = "FlatFace"
sketch16.addGeometry(Part.LineSegment(V(-57, -46, 0), V(-57, -43.9, 0)), False)
sketch16.addGeometry(Part.ArcOfCircle(Part.Circle(V(-57, -46, 0), V(0, 0, 1), 2.1), math.radians(90), math.radians(360)), False)
sketch16.addGeometry(Part.LineSegment(V(-54.9, -46, 0), V(-57, -46, 0)), False)
sketch16.addConstraint(Sketcher.Constraint("Coincident", 0, 2, 1, 1))
sketch16.addConstraint(Sketcher.Constraint("Coincident", 1, 2, 2, 1))
sketch16.addConstraint(Sketcher.Constraint("Coincident", 2, 2, 0, 1))
sketch16.addConstraint(Sketcher.Constraint("Vertical", 0))
sketch16.addConstraint(Sketcher.Constraint("Horizontal", 2))
sketch16.addConstraint(Sketcher.Constraint("Coincident", 2, 2, 1, 3))
sketch16.addConstraint(Sketcher.Constraint("Radius", 1, Q("2.1 mm")))
sketch16.addConstraint(Sketcher.Constraint("DistanceX", 1, 3, -1, 1, Q("57 mm")))
sketch16.addConstraint(Sketcher.Constraint("DistanceY", 1, 3, -1, 1, Q("46 mm")))
pocket15 = body.newObject("PartDesign::Pocket", "Pocket014")
pocket15.Profile = sketch16
pocket15.Length = 4

sketch17 = body.newObject("Sketcher::SketchObject", "Sketch016")
sketch17.AttachmentSupport = (doc.getObject("XY_Plane"), [""])
sketch17.MapMode = "FlatFace"
sketch17.addGeometry(Part.ArcOfCircle(Part.Circle(V(57, -46, 0), V(0, 0, 1), 2.1), math.radians(0), math.radians(90)), False)
sketch17.addGeometry(Part.LineSegment(V(57, -43.9, 0), V(57, -46, 0)), False)
sketch17.addGeometry(Part.LineSegment(V(57, -46, 0), V(54.9, -46, 0)), False)
sketch17.addGeometry(Part.ArcOfCircle(Part.Circle(V(57, -46, 0), V(0, 0, 1), 2.1), math.radians(180), math.radians(360)), False)
sketch17.addConstraint(Sketcher.Constraint("Coincident", 0, 2, 1, 1))
sketch17.addConstraint(Sketcher.Constraint("Coincident", 1, 2, 2, 1))
sketch17.addConstraint(Sketcher.Constraint("Coincident", 2, 2, 3, 1))
sketch17.addConstraint(Sketcher.Constraint("Tangent", 3, 2, 0, 1))
sketch17.addConstraint(Sketcher.Constraint("Vertical", 1))
sketch17.addConstraint(Sketcher.Constraint("Horizontal", 2))
sketch17.addConstraint(Sketcher.Constraint("Coincident", 1, 2, 0, 3))
sketch17.addConstraint(Sketcher.Constraint("Equal", 0, 3))
sketch17.addConstraint(Sketcher.Constraint("Horizontal", 2, 2, 3, 2))
sketch17.addConstraint(Sketcher.Constraint("Radius", 0, Q("2.1 mm")))
sketch17.addConstraint(Sketcher.Constraint("DistanceX", -1, 1, 0, 3, Q("57 mm")))
sketch17.addConstraint(Sketcher.Constraint("DistanceY", 0, 3, -1, 1, Q("46 mm")))
pocket16 = body.newObject("PartDesign::Pocket", "Pocket015")
pocket16.Profile = sketch17
pocket16.Type = "UpToFirst"

sketch18 = body.newObject("Sketcher::SketchObject", "Sketch017")
sketch18.AttachmentSupport = (doc.getObject("XY_Plane"), [""])
sketch18.MapMode = "FlatFace"
sketch18.addGeometry(Part.LineSegment(V(57, -46, 0), V(57, -43.9, 0)), False)
sketch18.addGeometry(Part.ArcOfCircle(Part.Circle(V(57, -46, 0), V(0, 0, 1), 2.1), math.radians(90), math.radians(180)), False)
sketch18.addGeometry(Part.LineSegment(V(54.9, -46, 0), V(57, -46, 0)), False)
sketch18.addConstraint(Sketcher.Constraint("Coincident", 0, 2, 1, 1))
sketch18.addConstraint(Sketcher.Constraint("Coincident", 1, 2, 2, 1))
sketch18.addConstraint(Sketcher.Constraint("Coincident", 2, 2, 0, 1))
sketch18.addConstraint(Sketcher.Constraint("Vertical", 0))
sketch18.addConstraint(Sketcher.Constraint("Horizontal", 2))
sketch18.addConstraint(Sketcher.Constraint("Coincident", 2, 2, 1, 3))
sketch18.addConstraint(Sketcher.Constraint("Radius", 1, Q("2.1 mm")))
sketch18.addConstraint(Sketcher.Constraint("DistanceX", -1, 1, 1, 3, Q("57 mm")))
sketch18.addConstraint(Sketcher.Constraint("DistanceY", 1, 3, -1, 1, Q("46 mm")))
pocket17 = body.newObject("PartDesign::Pocket", "Pocket016")
pocket17.Profile = sketch18
pocket17.Type = "UpToFirst"

sketch19 = body.newObject("Sketcher::SketchObject", "Sketch018")
sketch19.AttachmentSupport = (doc.getObject("XY_Plane"), [""])
sketch19.MapMode = "FlatFace"
sketch19.addGeometry(Part.ArcOfCircle(Part.Circle(V(57, -46, 0), V(0, 0, 1), 2.1), math.radians(0), math.radians(90)), False)
sketch19.addGeometry(Part.LineSegment(V(57, -43.9, 0), V(57, -46, 0)), False)
sketch19.addGeometry(Part.LineSegment(V(57, -46, 0), V(54.9, -46, 0)), False)
sketch19.addGeometry(Part.ArcOfCircle(Part.Circle(V(57, -46, 0), V(0, 0, 1), 2.1), math.radians(180), math.radians(360)), False)
sketch19.addConstraint(Sketcher.Constraint("Coincident", 0, 2, 1, 1))
sketch19.addConstraint(Sketcher.Constraint("Coincident", 1, 2, 2, 1))
sketch19.addConstraint(Sketcher.Constraint("Coincident", 2, 2, 3, 1))
sketch19.addConstraint(Sketcher.Constraint("Tangent", 3, 2, 0, 1))
sketch19.addConstraint(Sketcher.Constraint("Vertical", 1))
sketch19.addConstraint(Sketcher.Constraint("Horizontal", 2))
sketch19.addConstraint(Sketcher.Constraint("Coincident", 1, 2, 0, 3))
sketch19.addConstraint(Sketcher.Constraint("Equal", 0, 3))
sketch19.addConstraint(Sketcher.Constraint("Horizontal", 2, 2, 3, 2))
sketch19.addConstraint(Sketcher.Constraint("Radius", 0, Q("2.1 mm")))
sketch19.addConstraint(Sketcher.Constraint("DistanceX", -1, 1, 0, 3, Q("57 mm")))
sketch19.addConstraint(Sketcher.Constraint("DistanceY", 0, 3, -1, 1, Q("46 mm")))
pocket18 = body.newObject("PartDesign::Pocket", "Pocket017")
pocket18.Profile = sketch19
pocket18.Length = 4

sketch20 = body.newObject("Sketcher::SketchObject", "Sketch019")
sketch20.AttachmentSupport = (doc.getObject("XY_Plane"), [""])
sketch20.MapMode = "FlatFace"
sketch20.addGeometry(Part.LineSegment(V(57, -46, 0), V(57, -43.9, 0)), False)
sketch20.addGeometry(Part.ArcOfCircle(Part.Circle(V(57, -46, 0), V(0, 0, 1), 2.1), math.radians(90), math.radians(180)), False)
sketch20.addGeometry(Part.LineSegment(V(54.9, -46, 0), V(57, -46, 0)), False)
sketch20.addConstraint(Sketcher.Constraint("Coincident", 0, 2, 1, 1))
sketch20.addConstraint(Sketcher.Constraint("Coincident", 1, 2, 2, 1))
sketch20.addConstraint(Sketcher.Constraint("Coincident", 2, 2, 0, 1))
sketch20.addConstraint(Sketcher.Constraint("Vertical", 0))
sketch20.addConstraint(Sketcher.Constraint("Horizontal", 2))
sketch20.addConstraint(Sketcher.Constraint("Coincident", 2, 2, 1, 3))
sketch20.addConstraint(Sketcher.Constraint("Radius", 1, Q("2.1 mm")))
sketch20.addConstraint(Sketcher.Constraint("DistanceX", -1, 1, 1, 3, Q("57 mm")))
sketch20.addConstraint(Sketcher.Constraint("DistanceY", 1, 3, -1, 1, Q("46 mm")))
pocket19 = body.newObject("PartDesign::Pocket", "Pocket018")
pocket19.Profile = sketch20
pocket19.Length = 4

doc.recompute()
